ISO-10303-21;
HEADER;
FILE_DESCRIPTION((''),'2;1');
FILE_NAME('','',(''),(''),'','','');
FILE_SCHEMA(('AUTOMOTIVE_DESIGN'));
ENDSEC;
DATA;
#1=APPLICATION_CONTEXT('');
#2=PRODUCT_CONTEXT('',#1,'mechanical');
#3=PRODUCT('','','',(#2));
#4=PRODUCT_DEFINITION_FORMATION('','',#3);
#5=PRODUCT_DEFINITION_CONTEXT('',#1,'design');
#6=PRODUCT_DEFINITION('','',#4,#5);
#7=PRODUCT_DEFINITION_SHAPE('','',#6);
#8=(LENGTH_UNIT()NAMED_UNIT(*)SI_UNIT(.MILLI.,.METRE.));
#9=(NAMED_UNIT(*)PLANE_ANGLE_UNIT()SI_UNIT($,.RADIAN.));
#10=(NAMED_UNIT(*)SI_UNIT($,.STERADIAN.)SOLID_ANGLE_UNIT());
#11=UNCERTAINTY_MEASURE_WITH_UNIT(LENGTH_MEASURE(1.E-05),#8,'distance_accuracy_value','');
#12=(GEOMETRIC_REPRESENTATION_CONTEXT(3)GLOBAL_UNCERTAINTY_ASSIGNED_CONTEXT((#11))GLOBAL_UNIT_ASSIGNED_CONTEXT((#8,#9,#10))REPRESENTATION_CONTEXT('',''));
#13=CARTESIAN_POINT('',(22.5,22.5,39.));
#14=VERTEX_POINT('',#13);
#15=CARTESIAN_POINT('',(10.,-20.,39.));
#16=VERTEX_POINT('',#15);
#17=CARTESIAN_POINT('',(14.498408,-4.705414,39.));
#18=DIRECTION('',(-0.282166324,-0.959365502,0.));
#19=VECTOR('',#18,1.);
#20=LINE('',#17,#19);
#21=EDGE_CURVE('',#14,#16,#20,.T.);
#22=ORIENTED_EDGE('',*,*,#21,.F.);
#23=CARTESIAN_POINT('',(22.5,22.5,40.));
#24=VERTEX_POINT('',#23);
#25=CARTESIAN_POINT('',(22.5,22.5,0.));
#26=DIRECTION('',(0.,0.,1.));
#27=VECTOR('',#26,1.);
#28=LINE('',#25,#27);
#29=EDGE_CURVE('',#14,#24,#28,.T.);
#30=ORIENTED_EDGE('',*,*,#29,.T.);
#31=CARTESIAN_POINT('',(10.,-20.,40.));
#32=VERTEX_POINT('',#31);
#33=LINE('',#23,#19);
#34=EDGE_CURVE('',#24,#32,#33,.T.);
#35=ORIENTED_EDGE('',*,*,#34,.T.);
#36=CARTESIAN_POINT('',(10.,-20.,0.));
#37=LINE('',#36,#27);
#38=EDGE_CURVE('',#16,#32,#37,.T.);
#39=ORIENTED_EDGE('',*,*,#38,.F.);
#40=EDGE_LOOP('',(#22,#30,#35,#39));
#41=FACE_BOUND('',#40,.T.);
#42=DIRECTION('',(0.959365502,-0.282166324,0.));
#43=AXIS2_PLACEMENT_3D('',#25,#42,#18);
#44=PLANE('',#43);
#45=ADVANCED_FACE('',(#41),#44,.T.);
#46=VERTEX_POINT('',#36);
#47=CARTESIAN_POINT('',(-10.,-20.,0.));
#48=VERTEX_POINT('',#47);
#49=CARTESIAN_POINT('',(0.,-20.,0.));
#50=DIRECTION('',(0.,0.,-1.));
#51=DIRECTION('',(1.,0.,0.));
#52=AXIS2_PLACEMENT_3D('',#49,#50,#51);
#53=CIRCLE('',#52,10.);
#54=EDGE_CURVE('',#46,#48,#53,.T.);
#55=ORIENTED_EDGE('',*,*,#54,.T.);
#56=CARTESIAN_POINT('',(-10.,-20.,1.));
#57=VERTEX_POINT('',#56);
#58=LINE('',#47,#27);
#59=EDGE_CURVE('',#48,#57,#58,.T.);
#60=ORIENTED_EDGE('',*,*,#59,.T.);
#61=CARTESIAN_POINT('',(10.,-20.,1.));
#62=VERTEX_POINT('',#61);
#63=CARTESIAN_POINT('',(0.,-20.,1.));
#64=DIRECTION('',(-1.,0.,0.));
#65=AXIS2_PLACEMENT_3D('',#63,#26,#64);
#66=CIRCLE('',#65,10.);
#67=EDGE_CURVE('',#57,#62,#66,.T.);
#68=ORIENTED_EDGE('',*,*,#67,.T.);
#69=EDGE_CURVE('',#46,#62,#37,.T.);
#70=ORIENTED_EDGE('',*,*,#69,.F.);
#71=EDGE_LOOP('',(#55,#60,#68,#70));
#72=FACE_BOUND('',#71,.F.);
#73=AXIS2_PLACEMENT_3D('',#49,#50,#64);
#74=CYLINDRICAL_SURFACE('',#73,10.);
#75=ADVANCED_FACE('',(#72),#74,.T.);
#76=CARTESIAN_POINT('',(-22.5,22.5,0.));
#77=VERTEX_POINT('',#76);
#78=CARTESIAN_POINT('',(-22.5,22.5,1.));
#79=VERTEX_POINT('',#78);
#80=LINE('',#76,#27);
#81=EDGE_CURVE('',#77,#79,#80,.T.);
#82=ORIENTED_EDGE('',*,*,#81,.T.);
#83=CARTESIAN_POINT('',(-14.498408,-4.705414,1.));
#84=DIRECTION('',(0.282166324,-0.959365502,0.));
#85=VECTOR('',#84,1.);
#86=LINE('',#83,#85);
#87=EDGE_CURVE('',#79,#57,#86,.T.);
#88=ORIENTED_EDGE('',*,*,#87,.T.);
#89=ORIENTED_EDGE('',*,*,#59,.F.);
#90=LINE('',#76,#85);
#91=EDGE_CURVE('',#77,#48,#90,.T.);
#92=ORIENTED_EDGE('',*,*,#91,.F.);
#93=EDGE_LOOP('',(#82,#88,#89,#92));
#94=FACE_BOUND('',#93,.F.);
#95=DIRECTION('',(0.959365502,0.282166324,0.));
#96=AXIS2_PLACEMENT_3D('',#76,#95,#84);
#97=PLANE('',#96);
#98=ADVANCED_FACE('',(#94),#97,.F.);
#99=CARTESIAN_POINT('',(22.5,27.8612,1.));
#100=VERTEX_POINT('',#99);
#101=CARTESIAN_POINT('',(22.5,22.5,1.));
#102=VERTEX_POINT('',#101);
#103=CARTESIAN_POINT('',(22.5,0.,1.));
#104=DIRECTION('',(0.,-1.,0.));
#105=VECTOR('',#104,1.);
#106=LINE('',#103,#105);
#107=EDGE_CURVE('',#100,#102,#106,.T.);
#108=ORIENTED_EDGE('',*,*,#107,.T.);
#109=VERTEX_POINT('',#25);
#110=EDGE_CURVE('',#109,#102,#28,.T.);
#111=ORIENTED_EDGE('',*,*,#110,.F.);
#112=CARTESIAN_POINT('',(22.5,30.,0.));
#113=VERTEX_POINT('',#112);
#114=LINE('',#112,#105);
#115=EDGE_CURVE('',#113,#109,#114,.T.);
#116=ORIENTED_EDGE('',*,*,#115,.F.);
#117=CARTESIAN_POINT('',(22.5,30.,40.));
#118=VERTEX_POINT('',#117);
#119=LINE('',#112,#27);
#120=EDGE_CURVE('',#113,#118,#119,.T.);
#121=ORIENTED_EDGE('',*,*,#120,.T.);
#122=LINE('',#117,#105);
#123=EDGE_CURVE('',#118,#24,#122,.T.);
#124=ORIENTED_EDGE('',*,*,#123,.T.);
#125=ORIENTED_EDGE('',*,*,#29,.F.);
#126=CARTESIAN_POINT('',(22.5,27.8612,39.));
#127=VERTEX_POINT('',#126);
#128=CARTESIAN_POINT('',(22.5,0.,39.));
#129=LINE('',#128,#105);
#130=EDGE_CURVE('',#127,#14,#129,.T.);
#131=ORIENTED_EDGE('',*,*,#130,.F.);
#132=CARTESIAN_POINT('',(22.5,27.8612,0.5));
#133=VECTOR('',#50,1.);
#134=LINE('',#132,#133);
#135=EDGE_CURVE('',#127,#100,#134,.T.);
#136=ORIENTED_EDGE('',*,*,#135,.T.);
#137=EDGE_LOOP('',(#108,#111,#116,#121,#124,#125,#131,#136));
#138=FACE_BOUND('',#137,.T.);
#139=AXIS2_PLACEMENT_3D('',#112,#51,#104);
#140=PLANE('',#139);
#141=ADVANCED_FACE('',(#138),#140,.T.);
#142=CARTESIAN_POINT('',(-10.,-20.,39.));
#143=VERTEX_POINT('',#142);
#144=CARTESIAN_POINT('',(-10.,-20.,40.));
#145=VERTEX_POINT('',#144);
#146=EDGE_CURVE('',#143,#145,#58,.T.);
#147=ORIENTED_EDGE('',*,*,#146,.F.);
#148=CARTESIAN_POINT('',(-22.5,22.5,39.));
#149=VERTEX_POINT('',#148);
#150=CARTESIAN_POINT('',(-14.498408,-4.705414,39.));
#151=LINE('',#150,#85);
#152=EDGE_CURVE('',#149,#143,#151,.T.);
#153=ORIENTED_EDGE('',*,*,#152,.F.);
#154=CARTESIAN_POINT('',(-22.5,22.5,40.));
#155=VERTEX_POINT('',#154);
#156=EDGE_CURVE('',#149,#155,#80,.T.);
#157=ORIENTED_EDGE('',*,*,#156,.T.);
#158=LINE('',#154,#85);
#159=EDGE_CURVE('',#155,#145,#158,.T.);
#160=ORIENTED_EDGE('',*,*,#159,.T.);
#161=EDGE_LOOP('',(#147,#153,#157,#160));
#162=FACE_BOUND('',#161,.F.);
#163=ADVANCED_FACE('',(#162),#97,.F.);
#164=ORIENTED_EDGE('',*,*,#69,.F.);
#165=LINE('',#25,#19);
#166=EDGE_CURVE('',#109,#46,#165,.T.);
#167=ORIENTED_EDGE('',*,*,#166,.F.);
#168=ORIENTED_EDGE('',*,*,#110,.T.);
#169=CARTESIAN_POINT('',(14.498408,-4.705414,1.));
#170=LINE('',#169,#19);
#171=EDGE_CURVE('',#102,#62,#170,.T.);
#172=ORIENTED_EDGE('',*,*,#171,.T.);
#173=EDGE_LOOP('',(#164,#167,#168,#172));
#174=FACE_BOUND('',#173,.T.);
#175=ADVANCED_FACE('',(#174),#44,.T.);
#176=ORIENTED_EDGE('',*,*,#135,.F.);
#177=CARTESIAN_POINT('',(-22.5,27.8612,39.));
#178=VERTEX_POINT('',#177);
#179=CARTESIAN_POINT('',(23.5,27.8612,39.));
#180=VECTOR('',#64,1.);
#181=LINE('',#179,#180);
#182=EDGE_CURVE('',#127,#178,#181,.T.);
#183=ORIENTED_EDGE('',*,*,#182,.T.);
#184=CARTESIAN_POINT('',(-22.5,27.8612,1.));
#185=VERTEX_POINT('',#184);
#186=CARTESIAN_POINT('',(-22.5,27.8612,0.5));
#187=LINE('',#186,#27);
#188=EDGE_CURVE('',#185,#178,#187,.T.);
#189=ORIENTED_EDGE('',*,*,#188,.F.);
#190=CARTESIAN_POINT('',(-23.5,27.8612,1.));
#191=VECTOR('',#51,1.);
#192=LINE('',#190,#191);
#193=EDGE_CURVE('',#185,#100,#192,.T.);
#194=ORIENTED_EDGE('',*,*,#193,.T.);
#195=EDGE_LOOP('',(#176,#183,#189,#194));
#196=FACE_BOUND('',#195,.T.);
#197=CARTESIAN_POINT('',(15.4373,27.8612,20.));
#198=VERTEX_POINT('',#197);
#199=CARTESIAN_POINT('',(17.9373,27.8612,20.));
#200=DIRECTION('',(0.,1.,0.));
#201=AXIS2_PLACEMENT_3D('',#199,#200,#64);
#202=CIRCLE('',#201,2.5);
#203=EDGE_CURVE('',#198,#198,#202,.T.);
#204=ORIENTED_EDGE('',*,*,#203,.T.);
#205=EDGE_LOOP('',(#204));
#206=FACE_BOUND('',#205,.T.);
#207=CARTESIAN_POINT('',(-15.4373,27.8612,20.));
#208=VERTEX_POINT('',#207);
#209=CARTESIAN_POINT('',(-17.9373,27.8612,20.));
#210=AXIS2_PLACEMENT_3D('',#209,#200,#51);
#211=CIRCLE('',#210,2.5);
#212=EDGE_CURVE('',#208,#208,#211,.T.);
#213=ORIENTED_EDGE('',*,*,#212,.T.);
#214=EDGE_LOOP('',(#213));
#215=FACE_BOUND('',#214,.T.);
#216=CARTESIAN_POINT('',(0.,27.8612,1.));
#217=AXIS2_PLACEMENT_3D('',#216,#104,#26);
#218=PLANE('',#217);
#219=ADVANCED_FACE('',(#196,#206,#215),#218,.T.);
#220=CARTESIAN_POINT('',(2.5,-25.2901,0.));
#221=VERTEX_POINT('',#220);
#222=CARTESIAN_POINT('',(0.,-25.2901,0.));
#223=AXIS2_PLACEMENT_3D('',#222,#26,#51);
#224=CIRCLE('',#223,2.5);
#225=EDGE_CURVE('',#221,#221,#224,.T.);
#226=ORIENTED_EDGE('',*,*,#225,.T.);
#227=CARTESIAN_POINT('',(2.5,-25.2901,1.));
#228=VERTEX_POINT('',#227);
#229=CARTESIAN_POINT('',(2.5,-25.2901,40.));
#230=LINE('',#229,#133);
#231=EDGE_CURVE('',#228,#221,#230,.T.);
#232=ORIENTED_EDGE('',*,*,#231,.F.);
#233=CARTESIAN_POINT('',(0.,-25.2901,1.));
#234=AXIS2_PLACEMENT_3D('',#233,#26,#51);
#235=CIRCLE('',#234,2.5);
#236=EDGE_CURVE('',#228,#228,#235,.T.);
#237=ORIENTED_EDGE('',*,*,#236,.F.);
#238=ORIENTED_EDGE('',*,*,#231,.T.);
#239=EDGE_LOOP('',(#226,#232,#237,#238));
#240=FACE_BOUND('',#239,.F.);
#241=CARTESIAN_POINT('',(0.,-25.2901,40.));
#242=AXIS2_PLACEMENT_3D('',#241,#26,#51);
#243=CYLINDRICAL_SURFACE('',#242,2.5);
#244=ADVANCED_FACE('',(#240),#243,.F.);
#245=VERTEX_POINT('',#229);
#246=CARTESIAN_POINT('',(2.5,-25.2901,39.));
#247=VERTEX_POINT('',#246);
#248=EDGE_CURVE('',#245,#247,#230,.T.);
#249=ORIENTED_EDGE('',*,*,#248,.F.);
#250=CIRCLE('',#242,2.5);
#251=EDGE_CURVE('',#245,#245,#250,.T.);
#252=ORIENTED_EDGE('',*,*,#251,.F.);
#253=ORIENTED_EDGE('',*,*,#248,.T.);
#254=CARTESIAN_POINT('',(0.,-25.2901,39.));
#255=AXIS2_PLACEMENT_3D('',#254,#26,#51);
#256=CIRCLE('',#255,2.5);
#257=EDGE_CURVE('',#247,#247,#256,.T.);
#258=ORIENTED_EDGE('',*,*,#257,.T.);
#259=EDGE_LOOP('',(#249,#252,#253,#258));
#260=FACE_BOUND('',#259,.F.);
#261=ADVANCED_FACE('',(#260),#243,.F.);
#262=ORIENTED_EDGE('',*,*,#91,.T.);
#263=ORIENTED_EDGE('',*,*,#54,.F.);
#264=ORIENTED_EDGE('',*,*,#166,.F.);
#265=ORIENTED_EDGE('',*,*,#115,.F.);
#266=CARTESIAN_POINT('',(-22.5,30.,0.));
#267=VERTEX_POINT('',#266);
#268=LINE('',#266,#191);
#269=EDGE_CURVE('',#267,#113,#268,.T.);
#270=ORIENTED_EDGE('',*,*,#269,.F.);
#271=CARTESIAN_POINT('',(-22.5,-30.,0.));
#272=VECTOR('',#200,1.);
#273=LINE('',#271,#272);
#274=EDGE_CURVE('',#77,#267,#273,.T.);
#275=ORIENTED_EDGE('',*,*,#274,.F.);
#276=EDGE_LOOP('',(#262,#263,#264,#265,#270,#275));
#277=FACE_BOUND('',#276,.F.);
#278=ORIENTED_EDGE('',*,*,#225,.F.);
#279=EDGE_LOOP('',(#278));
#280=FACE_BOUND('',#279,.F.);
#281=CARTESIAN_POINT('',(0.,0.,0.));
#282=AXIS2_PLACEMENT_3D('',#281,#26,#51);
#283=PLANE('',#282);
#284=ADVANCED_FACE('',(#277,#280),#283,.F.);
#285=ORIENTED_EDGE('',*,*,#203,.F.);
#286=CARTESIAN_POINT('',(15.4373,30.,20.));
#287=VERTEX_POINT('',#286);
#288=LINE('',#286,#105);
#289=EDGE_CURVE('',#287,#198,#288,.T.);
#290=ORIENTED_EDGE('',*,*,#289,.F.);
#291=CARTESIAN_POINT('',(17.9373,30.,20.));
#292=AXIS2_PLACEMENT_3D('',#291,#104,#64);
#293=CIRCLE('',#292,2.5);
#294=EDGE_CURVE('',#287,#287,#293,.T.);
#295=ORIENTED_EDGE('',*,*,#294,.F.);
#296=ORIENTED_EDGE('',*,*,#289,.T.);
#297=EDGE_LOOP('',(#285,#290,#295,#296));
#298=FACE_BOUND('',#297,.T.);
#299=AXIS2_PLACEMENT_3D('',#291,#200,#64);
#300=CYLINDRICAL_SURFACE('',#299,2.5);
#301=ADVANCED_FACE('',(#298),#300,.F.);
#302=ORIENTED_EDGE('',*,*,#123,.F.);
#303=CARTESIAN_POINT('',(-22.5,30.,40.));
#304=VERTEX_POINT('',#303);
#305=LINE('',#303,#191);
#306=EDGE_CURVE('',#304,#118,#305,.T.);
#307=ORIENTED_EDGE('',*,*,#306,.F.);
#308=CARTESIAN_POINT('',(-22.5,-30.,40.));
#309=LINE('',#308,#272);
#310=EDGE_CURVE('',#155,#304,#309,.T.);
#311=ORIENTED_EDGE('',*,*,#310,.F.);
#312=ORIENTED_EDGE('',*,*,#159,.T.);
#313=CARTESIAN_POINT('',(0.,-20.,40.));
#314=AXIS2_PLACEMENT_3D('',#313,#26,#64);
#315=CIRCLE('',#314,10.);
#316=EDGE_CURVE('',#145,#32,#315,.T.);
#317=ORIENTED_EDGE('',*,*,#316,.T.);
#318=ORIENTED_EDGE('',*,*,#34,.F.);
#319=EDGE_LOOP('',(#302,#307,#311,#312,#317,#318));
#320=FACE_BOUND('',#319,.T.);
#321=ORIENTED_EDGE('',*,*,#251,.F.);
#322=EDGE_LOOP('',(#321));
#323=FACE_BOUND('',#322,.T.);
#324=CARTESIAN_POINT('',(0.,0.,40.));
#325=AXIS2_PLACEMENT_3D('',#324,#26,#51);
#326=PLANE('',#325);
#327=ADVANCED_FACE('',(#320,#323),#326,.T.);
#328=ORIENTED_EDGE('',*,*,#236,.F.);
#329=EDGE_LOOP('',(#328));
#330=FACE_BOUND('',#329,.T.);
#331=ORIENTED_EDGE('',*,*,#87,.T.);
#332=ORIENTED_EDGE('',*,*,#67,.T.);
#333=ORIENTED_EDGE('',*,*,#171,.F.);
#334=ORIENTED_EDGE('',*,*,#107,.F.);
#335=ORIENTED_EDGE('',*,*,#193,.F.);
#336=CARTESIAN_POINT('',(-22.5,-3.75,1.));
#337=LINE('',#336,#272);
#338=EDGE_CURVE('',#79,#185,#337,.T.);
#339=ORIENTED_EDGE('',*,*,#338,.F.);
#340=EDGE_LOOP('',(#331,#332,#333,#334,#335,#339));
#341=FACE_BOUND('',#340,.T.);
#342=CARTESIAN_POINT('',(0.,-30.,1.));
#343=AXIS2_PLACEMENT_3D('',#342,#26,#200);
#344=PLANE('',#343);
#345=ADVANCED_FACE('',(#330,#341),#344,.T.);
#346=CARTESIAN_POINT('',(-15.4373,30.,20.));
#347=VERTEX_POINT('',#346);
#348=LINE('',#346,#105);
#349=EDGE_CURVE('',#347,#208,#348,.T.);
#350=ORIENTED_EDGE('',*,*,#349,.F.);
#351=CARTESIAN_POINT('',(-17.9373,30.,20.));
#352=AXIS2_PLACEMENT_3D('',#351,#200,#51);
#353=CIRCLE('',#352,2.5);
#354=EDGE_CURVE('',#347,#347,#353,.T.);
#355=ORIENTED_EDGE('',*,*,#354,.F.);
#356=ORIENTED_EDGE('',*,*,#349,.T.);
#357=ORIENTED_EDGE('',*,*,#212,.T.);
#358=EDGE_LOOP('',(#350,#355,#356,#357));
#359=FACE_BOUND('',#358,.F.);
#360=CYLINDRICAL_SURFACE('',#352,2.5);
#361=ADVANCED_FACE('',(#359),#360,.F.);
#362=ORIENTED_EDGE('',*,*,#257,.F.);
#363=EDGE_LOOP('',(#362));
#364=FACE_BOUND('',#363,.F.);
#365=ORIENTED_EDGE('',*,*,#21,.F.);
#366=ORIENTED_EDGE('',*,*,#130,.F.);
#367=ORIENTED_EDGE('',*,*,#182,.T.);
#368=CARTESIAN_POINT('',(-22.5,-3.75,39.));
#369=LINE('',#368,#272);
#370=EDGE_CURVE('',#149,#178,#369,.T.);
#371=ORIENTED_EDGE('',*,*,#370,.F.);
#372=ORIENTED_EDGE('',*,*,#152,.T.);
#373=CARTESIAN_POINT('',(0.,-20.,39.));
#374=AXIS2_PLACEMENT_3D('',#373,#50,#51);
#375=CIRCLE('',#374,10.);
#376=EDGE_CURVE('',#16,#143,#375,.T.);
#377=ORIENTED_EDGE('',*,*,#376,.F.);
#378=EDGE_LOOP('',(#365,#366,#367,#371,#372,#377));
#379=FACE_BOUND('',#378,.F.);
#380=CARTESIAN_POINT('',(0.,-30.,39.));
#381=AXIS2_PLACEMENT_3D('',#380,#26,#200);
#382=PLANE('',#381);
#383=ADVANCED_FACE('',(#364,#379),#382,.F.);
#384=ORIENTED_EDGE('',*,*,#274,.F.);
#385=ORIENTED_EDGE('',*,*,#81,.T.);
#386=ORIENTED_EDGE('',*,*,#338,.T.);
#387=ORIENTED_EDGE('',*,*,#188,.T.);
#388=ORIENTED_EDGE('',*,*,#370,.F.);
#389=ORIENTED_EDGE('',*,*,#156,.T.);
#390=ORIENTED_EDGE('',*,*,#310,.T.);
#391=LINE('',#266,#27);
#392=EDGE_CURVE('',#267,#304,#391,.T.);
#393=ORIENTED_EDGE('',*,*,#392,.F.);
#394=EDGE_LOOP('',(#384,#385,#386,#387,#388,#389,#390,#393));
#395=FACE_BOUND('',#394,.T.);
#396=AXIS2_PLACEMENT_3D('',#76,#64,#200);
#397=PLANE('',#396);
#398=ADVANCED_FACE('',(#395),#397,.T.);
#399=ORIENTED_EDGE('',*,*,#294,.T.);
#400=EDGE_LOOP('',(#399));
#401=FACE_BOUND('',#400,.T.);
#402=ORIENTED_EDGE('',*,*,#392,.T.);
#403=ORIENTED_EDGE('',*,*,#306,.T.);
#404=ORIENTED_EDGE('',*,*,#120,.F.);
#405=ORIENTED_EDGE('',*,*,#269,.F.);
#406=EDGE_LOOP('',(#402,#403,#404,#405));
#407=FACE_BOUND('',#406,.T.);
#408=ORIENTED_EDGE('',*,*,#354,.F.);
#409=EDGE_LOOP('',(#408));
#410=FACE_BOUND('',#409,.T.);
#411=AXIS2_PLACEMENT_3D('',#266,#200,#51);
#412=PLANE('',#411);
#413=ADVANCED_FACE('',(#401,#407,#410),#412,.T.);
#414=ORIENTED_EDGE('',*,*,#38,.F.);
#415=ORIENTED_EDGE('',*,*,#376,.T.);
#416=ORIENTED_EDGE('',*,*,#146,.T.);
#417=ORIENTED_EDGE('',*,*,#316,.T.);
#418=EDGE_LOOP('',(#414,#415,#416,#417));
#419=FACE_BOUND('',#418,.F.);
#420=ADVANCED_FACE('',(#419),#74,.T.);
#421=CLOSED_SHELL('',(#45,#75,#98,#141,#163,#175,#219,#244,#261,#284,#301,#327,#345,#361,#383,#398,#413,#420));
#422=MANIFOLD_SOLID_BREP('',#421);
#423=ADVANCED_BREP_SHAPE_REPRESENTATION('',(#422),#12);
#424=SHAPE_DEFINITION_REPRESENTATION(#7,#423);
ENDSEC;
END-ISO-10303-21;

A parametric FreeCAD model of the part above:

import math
import FreeCAD as App
import Part
import Sketcher
from FreeCAD import Vector


def add_polygon(sketch, points):
    """Adds a closed chain of lines whose ends are joined by coincident constraints."""
    first, n = sketch.GeometryCount, len(points)
    for a, b in zip(points, points[1:] + points[:1]):
        sketch.addGeometry(Part.LineSegment(App.Vector(*a, 0), App.Vector(*b, 0)), False)
    for i in range(n):
        sketch.addConstraint(Sketcher.Constraint("Coincident", first + i, 2, first + (i + 1) % n, 1))

doc = App.newDocument("Part")
body = doc.addObject("PartDesign::Body", "Body")

# Sketch on XY plane
sketch1 = body.newObject("Sketcher::SketchObject", "Sketch")
sketch1.AttachmentSupport = (doc.getObject("XY_Plane"), [""])
sketch1.MapMode = "FlatFace"
sketch1.addGeometry(Part.LineSegment(Vector(-22, 30, 0), Vector(-22, 22, 0)), False)
sketch1.addGeometry(Part.LineSegment(Vector(-22, 22, 0), Vector(-10, -20, 0)), False)
sketch1.addGeometry(Part.ArcOfCircle(Part.Circle(Vector(0, -20, 0), Vector(0, 0, 1), 10), math.radians(180), math.radians(360)), False)
sketch1.addGeometry(Part.LineSegment(Vector(10, -20, 0), Vector(22, 22, 0)), False)
sketch1.addGeometry(Part.LineSegment(Vector(22, 22, 0), Vector(22, 30, 0)), False)
sketch1.addGeometry(Part.LineSegment(Vector(22, 30, 0), Vector(-22, 30, 0)), False)
sketch1.addConstraint(Sketcher.Constraint("Coincident", 0, 2, 1, 1))
sketch1.addConstraint(Sketcher.Constraint("Coincident", 1, 2, 2, 1))
sketch1.addConstraint(Sketcher.Constraint("Coincident", 2, 2, 3, 1))
sketch1.addConstraint(Sketcher.Constraint("Coincident", 3, 2, 4, 1))
sketch1.addConstraint(Sketcher.Constraint("Coincident", 4, 2, 5, 1))
sketch1.addConstraint(Sketcher.Constraint("Coincident", 5, 2, 0, 1))
sketch1.addConstraint(Sketcher.Constraint("Vertical", 0))
sketch1.addConstraint(Sketcher.Constraint("Vertical", 4))
sketch1.addConstraint(Sketcher.Constraint("Horizontal", 5))
sketch1.addConstraint(Sketcher.Constraint("Symmetric", 1, 2, 2, 2, -2))
sketch1.addConstraint(Sketcher.Constraint("Symmetric", 0, 2, 3, 2, -2))
sketch1.addConstraint(Sketcher.Constraint("Horizontal", 2, 3, 1, 2))
sketch1.addConstraint(Sketcher.Constraint("Radius", 2, 10.0))
sketch1.addConstraint(Sketcher.Constraint("DistanceX", 5, 2, 5, 1, 45.0))
sketch1.addConstraint(Sketcher.Constraint("DistanceY", 0, 2, 0, 1, 7.5))
sketch1.addConstraint(Sketcher.Constraint("DistanceY", 2, 3, -1, 1, 20.0))
sketch1.addConstraint(Sketcher.Constraint("DistanceY", -1, 1, 4, 2, 30.0))
pad1 = body.newObject("PartDesign::Pad", "Pad")
pad1.Profile = sketch1
pad1.Length = 40

# Sketch on YZ plane
sketch2 = body.newObject("Sketcher::SketchObject", "Sketch001")
sketch2.AttachmentSupport = (doc.getObject("YZ_Plane"), [""])
sketch2.MapMode = "FlatFace"
add_polygon(sketch2, [(-30, 39), (-30, 1), (28, 1), (28, 39)])  # lines 0-3
sketch2.addConstraint(Sketcher.Constraint("Vertical", 0))
sketch2.addConstraint(Sketcher.Constraint("Horizontal", 1))
sketch2.addConstraint(Sketcher.Constraint("Vertical", 2))
sketch2.addConstraint(Sketcher.Constraint("Horizontal", 3))
sketch2.addConstraint(Sketcher.Constraint("DistanceY", -1, 1, 0, 2, 1.0))
sketch2.addConstraint(Sketcher.Constraint("DistanceY", 0, 2, 0, 1, 38.0))
sketch2.addConstraint(Sketcher.Constraint("DistanceX", 0, 2, -1, 1, 30.0))
sketch2.addConstraint(Sketcher.Constraint("DistanceX", 1, 1, 1, 2, 57.8612))
pocket1 = body.newObject("PartDesign::Pocket", "Pocket")
pocket1.Profile = sketch2
pocket1.Type = "ThroughAll"
pocket1.Midplane = True

# Sketch on XY plane
sketch3 = body.newObject("Sketcher::SketchObject", "Sketch002")
sketch3.AttachmentSupport = (doc.getObject("XY_Plane"), [""])
sketch3.MapMode = "FlatFace"
sketch3.AttachmentOffset = App.Placement(Vector(0, 0, 40), App.Rotation())
sketch3.addGeometry(Part.Circle(Vector(0, -25.3, 0), Vector(0, 0, 1), 2.5), False)
sketch3.addConstraint(Sketcher.Constraint("PointOnObject", 0, 3, -2))
sketch3.addConstraint(Sketcher.Constraint("Diameter", 0, 5.0))
sketch3.addConstraint(Sketcher.Constraint("DistanceY", 0, 3, -1, 1, 25.29))
pocket2 = body.newObject("PartDesign::Pocket", "Pocket001")
pocket2.Profile = sketch3
pocket2.Length = 40

# Sketch on XZ plane
sketch4 = body.newObject("Sketcher::SketchObject", "Sketch003")
sketch4.AttachmentSupport = (doc.getObject("XZ_Plane"), [""])
sketch4.MapMode = "FlatFace"
sketch4.AttachmentOffset = App.Placement(Vector(0, 0, -30), App.Rotation())
sketch4.addGeometry(Part.Circle(Vector(-17.9, 20, 0), Vector(0, 0, 1), 2.5), False)
sketch4.addConstraint(Sketcher.Constraint("Diameter", 0, 5.0))
sketch4.addConstraint(Sketcher.Constraint("DistanceY", -1, 1, 0, 3, 20.0))
sketch4.addConstraint(Sketcher.Constraint("DistanceX", 0, 3, -1, 1, 17.9373))
pocket3 = body.newObject("PartDesign::Pocket", "Pocket002")
pocket3.Profile = sketch4
pocket3.Length = 10
pocket3.Reversed = True
doc.recompute()

mirrored = body.newObject("PartDesign::Mirrored", "Mirrored")
mirrored.Originals = [pocket3]
mirrored.MirrorPlane = (doc.getObject("YZ_Plane"), [""])
body.Tip = mirrored

doc.recompute()
